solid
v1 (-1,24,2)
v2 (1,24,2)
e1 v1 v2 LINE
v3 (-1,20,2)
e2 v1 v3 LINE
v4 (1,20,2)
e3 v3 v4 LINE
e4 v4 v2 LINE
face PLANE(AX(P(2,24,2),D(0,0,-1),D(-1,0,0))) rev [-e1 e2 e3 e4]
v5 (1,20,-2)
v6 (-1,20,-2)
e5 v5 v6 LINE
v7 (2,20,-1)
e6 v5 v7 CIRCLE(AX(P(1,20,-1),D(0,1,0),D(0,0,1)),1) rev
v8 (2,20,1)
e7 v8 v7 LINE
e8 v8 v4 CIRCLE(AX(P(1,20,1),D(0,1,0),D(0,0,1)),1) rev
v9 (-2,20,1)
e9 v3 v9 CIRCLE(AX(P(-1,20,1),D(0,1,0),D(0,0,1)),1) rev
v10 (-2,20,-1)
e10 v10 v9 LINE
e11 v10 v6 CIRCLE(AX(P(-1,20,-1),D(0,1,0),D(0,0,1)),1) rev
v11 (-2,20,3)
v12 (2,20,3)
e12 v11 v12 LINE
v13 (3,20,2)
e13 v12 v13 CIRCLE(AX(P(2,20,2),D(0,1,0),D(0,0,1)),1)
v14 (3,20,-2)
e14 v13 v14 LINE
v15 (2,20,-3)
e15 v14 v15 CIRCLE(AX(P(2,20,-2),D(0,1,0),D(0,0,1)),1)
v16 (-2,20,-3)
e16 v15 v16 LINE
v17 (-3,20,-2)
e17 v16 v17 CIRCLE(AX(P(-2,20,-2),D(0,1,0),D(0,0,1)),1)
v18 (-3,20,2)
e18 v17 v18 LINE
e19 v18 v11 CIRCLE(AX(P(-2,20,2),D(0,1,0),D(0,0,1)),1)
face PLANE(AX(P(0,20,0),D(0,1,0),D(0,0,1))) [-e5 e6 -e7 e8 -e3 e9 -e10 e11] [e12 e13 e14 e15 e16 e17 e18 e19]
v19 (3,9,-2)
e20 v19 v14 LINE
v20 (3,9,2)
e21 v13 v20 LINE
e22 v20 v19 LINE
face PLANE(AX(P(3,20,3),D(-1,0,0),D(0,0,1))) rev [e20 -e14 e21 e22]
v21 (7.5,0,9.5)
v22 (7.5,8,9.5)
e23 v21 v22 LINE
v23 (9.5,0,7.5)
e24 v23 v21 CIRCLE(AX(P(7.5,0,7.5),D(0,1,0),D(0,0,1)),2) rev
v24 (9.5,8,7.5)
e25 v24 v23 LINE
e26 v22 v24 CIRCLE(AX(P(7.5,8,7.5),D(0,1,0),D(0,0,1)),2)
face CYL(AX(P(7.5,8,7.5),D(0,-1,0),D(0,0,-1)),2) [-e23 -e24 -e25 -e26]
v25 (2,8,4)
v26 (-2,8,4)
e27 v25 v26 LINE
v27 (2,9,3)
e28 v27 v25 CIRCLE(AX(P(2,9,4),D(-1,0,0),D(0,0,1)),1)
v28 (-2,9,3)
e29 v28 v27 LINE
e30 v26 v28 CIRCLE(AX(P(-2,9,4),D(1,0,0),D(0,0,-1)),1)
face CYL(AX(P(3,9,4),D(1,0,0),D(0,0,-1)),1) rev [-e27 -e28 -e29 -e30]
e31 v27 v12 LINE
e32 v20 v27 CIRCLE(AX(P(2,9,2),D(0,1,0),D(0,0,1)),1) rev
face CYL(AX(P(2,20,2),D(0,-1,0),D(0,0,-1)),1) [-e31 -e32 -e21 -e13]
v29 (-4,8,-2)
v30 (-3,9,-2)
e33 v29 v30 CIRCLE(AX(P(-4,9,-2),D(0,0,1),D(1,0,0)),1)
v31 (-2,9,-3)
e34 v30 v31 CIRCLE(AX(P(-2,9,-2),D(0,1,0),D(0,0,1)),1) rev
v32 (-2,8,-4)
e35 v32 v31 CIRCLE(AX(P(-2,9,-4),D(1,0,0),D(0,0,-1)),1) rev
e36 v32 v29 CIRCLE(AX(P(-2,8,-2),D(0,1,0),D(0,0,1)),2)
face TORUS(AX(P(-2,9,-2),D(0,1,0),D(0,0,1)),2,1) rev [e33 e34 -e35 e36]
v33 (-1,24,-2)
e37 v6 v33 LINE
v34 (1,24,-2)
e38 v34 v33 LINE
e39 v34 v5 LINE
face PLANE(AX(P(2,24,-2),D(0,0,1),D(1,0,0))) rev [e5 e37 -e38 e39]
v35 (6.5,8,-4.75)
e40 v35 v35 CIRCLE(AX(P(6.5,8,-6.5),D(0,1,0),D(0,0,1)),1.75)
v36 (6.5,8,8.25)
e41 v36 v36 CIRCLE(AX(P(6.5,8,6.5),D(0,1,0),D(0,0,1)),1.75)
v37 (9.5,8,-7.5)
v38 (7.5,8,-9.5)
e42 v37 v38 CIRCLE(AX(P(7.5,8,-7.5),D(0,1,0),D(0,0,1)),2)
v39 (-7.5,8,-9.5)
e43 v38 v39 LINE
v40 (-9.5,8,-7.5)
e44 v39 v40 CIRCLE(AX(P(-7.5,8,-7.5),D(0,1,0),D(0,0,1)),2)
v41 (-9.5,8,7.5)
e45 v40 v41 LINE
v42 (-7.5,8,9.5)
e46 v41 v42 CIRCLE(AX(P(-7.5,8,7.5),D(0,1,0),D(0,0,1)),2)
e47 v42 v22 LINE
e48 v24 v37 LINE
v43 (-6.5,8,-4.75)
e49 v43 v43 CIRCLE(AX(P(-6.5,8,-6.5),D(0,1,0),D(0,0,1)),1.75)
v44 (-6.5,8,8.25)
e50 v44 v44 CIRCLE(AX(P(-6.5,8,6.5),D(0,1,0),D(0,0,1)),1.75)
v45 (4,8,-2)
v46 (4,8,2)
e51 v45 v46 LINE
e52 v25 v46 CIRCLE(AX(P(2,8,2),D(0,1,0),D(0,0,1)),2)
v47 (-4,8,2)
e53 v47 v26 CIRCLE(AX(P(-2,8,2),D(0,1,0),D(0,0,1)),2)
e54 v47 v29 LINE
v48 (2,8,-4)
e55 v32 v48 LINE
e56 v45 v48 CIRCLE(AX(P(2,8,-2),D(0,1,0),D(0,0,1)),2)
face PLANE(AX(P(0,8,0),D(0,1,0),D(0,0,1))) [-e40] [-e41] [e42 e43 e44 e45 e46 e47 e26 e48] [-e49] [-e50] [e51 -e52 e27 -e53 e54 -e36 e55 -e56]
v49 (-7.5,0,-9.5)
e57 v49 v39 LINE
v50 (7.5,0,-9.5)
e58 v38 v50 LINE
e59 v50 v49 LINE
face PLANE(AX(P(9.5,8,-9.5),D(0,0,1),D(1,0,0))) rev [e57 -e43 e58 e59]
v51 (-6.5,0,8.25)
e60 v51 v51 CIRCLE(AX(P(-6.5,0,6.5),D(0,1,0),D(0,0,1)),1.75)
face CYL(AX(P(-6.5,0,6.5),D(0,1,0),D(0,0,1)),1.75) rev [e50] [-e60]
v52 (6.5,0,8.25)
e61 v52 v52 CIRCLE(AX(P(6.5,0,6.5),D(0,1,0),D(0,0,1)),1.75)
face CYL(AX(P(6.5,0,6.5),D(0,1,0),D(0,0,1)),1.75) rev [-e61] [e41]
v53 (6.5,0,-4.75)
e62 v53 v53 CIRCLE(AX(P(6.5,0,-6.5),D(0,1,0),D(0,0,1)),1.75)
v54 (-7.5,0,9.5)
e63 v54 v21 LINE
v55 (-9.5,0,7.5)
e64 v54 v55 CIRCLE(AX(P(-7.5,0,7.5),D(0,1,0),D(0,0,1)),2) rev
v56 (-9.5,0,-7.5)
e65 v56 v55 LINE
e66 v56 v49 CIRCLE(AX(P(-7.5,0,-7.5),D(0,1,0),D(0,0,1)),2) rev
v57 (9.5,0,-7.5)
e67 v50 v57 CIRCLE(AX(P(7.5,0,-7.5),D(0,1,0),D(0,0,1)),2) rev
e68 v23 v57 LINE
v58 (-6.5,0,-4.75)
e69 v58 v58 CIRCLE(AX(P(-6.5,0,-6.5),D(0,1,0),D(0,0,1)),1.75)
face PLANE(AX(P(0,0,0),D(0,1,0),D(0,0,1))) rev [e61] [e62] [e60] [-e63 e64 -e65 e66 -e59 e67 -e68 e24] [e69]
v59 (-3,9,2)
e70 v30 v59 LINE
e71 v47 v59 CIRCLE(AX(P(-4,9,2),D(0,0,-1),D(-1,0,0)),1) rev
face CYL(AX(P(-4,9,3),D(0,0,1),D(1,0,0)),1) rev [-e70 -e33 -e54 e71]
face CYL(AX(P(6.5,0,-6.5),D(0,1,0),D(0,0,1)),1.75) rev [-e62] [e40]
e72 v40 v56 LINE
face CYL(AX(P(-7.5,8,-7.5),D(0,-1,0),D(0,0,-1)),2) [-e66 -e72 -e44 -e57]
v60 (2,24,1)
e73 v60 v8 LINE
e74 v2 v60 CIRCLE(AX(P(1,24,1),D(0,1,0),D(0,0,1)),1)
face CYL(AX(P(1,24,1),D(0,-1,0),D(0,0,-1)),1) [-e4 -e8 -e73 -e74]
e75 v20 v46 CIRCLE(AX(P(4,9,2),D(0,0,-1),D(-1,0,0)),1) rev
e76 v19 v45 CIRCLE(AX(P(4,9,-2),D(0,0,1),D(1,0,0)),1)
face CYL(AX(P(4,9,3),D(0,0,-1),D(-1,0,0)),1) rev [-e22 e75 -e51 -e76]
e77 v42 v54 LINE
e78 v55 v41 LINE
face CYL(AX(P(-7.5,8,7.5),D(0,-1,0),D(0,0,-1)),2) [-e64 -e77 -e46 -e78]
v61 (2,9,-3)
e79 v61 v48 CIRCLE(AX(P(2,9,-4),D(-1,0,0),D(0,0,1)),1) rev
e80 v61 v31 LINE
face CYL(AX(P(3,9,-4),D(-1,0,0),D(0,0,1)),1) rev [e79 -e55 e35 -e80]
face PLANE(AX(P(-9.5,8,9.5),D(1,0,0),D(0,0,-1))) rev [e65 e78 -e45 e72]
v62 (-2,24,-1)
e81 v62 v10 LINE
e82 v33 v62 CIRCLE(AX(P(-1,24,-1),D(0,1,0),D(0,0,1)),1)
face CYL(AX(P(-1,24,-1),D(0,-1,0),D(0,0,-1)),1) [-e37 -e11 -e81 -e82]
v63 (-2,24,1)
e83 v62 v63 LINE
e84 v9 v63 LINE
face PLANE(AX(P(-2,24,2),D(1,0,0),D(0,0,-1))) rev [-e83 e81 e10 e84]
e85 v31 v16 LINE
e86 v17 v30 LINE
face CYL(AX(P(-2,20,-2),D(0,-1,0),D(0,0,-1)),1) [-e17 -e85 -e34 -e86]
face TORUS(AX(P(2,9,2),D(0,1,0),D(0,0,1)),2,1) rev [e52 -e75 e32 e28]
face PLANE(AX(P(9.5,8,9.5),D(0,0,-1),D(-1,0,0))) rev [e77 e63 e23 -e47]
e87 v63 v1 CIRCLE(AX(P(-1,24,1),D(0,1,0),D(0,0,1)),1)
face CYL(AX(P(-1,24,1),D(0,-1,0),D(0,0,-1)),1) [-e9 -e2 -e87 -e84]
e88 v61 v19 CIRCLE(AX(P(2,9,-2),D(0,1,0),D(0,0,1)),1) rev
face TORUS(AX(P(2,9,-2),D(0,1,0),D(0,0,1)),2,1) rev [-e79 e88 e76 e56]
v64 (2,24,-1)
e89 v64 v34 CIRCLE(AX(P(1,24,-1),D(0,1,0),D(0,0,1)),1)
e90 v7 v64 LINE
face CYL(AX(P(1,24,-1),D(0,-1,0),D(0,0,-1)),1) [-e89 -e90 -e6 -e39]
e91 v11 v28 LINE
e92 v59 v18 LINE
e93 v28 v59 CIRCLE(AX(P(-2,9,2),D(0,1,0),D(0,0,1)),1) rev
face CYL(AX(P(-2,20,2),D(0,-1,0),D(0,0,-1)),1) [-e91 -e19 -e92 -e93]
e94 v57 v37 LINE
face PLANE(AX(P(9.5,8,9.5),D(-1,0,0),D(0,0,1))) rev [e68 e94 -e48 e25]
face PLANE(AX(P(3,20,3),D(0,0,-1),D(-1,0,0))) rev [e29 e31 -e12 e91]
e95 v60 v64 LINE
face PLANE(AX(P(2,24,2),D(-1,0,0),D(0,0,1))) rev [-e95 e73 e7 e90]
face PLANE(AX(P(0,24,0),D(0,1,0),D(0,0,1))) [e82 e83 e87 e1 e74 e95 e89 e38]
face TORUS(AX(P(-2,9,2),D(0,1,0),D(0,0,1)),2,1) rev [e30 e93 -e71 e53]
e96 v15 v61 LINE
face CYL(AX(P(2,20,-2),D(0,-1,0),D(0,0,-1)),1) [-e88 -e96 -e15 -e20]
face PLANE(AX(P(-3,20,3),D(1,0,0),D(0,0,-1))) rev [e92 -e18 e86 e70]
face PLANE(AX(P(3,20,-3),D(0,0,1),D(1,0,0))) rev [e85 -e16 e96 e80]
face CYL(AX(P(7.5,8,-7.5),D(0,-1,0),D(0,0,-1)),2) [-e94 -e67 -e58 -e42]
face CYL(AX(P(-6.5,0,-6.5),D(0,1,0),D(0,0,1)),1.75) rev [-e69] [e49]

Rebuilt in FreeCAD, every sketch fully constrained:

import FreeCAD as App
import Part
import Sketcher


def edges_at(feature, points):
    """Names of the edges that pass closest to the given points."""
    edges = feature.Shape.Edges
    near = lambda p: min(range(len(edges)), key=lambda i: edges[i].distToShape(Part.Vertex(*p))[0])
    return sorted({f"Edge{near(p) + 1}" for p in points})

doc = App.newDocument("Part")
body = doc.addObject("PartDesign::Body", "Body")

sketch1 = body.newObject("Sketcher::SketchObject", "Sketch")
sketch1.AttachmentSupport = (doc.getObject("XZ_Plane"), [""])
sketch1.MapMode = "FlatFace"
sketch1.addGeometry(Part.LineSegment(App.Vector(-10, -10, 0), App.Vector(-10, 10, 0)), False)
sketch1.addGeometry(Part.LineSegment(App.Vector(-10, 10, 0), App.Vector(10, 10, 0)), False)
sketch1.addGeometry(Part.LineSegment(App.Vector(10, 10, 0), App.Vector(10, -10, 0)), False)
sketch1.addGeometry(Part.LineSegment(App.Vector(10, -10, 0), App.Vector(-10, -10, 0)), False)
sketch1.addConstraint(Sketcher.Constraint("Coincident", 0, 2, 1, 1))
sketch1.addConstraint(Sketcher.Constraint("Coincident", 1, 2, 2, 1))
sketch1.addConstraint(Sketcher.Constraint("Coincident", 2, 2, 3, 1))
sketch1.addConstraint(Sketcher.Constraint("Coincident", 3, 2, 0, 1))
sketch1.addConstraint(Sketcher.Constraint("Vertical", 0))
sketch1.addConstraint(Sketcher.Constraint("Horizontal", 1))
sketch1.addConstraint(Sketcher.Constraint("Vertical", 2))
sketch1.addConstraint(Sketcher.Constraint("Horizontal", 3))
sketch1.addConstraint(Sketcher.Constraint("Symmetric", 0, 2, 2, 2, -1, 1))
sketch1.addConstraint(Sketcher.Constraint("Equal", 3, 0))
sketch1.addConstraint(Sketcher.Constraint("DistanceX", 1, 1, 1, 2, 19.0))
pad1 = body.newObject("PartDesign::Pad", "Pad")
pad1.Profile = sketch1
pad1.Length = 8
pad1.Reversed = True

sketch2 = body.newObject("Sketcher::SketchObject", "Sketch001")
sketch2.AttachmentSupport = (doc.getObject("XZ_Plane"), [""])
sketch2.MapMode = "FlatFace"
sketch2.AttachmentOffset = App.Placement(App.Vector(0, 0, -8), App.Rotation())
sketch2.addGeometry(Part.Circle(App.Vector(-6.5, -6.5, 0), App.Vector(0, 0, 1), 1.8), False)
sketch2.addGeometry(Part.Circle(App.Vector(6.5, -6.5, 0), App.Vector(0, 0, 1), 1.8), False)
sketch2.addGeometry(Part.Circle(App.Vector(-6.5, 6.5, 0), App.Vector(0, 0, 1), 1.8), False)
sketch2.addGeometry(Part.Circle(App.Vector(6.5, 6.5, 0), App.Vector(0, 0, 1), 1.8), False)
sketch2.addConstraint(Sketcher.Constraint("Equal", 0, 1))
sketch2.addConstraint(Sketcher.Constraint("Equal", 1, 2))
sketch2.addConstraint(Sketcher.Constraint("Equal", 2, 3))
sketch2.addConstraint(Sketcher.Constraint("Symmetric", 1, 3, 2, 3, -1, 1))
sketch2.addConstraint(Sketcher.Constraint("Symmetric", 0, 3, 3, 3, -1, 1))
sketch2.addConstraint(Sketcher.Constraint("Symmetric", 0, 3, 1, 3, -2))
sketch2.addConstraint(Sketcher.Constraint("Diameter", 0, 3.5))
sketch2.addConstraint(Sketcher.Constraint("DistanceX", 0, 3, 1, 3, 13.0))
sketch2.addConstraint(Sketcher.Constraint("DistanceY", 0, 3, 2, 3, 13.0))
pocket1 = body.newObject("PartDesign::Pocket", "Pocket")
pocket1.Profile = sketch2
pocket1.Type = "ThroughAll"
pocket1.Reversed = True

sketch3 = body.newObject("Sketcher::SketchObject", "Sketch002")
sketch3.AttachmentSupport = (doc.getObject("XZ_Plane"), [""])
sketch3.MapMode = "FlatFace"
sketch3.AttachmentOffset = App.Placement(App.Vector(0, 0, -8), App.Rotation())
sketch3.addGeometry(Part.LineSegment(App.Vector(-3, -3, 0), App.Vector(-3, 3, 0)), False)
sketch3.addGeometry(Part.LineSegment(App.Vector(-3, 3, 0), App.Vector(3, 3, 0)), False)
sketch3.addGeometry(Part.LineSegment(App.Vector(3, 3, 0), App.Vector(3, -3, 0)), False)
sketch3.addGeometry(Part.LineSegment(App.Vector(3, -3, 0), App.Vector(-3, -3, 0)), False)
sketch3.addConstraint(Sketcher.Constraint("Coincident", 0, 2, 1, 1))
sketch3.addConstraint(Sketcher.Constraint("Coincident", 1, 2, 2, 1))
sketch3.addConstraint(Sketcher.Constraint("Coincident", 2, 2, 3, 1))
sketch3.addConstraint(Sketcher.Constraint("Coincident", 3, 2, 0, 1))
sketch3.addConstraint(Sketcher.Constraint("Vertical", 0))
sketch3.addConstraint(Sketcher.Constraint("Horizontal", 1))
sketch3.addConstraint(Sketcher.Constraint("Vertical", 2))
sketch3.addConstraint(Sketcher.Constraint("Horizontal", 3))
sketch3.addConstraint(Sketcher.Constraint("Symmetric", 0, 2, 2, 2, -1, 1))
sketch3.addConstraint(Sketcher.Constraint("Equal", 3, 0))
sketch3.addConstraint(Sketcher.Constraint("DistanceX", 1, 1, 1, 2, 6.0))
pad2 = body.newObject("PartDesign::Pad", "Pad001")
pad2.Profile = sketch3
pad2.Length = 12
pad2.Reversed = True
doc.recompute()

fillet = body.newObject("PartDesign::Fillet", "Fillet")
fillet.Base = (pad2, edges_at(pad2, [
    (-9.5, 4, -9.5),
    (9.5, 4, -9.5),
    (9.5, 4, 9.5),
    (-9.5, 4, 9.5),
]))
fillet.Radius = 2

sketch4 = body.newObject("Sketcher::SketchObject", "Sketch003")
sketch4.AttachmentSupport = (doc.getObject("XZ_Plane"), [""])
sketch4.MapMode = "FlatFace"
sketch4.AttachmentOffset = App.Placement(App.Vector(0, 0, -20), App.Rotation())
sketch4.addGeometry(Part.LineSegment(App.Vector(-2, -2, 0), App.Vector(-2, 2, 0)), False)
sketch4.addGeometry(Part.LineSegment(App.Vector(-2, 2, 0), App.Vector(2, 2, 0)), False)
sketch4.addGeometry(Part.LineSegment(App.Vector(2, 2, 0), App.Vector(2, -2, 0)), False)
sketch4.addGeometry(Part.LineSegment(App.Vector(2, -2, 0), App.Vector(-2, -2, 0)), False)
sketch4.addConstraint(Sketcher.Constraint("Coincident", 0, 2, 1, 1))
sketch4.addConstraint(Sketcher.Constraint("Coincident", 1, 2, 2, 1))
sketch4.addConstraint(Sketcher.Constraint("Coincident", 2, 2, 3, 1))
sketch4.addConstraint(Sketcher.Constraint("Coincident", 3, 2, 0, 1))
sketch4.addConstraint(Sketcher.Constraint("Vertical", 0))
sketch4.addConstraint(Sketcher.Constraint("Horizontal", 1))
sketch4.addConstraint(Sketcher.Constraint("Vertical", 2))
sketch4.addConstraint(Sketcher.Constraint("Horizontal", 3))
sketch4.addConstraint(Sketcher.Constraint("Symmetric", 0, 2, 2, 2, -1, 1))
sketch4.addConstraint(Sketcher.Constraint("Equal", 3, 0))
sketch4.addConstraint(Sketcher.Constraint("DistanceX", 1, 1, 1, 2, 4.0))
pad3 = body.newObject("PartDesign::Pad", "Pad002")
pad3.Profile = sketch4
pad3.Length = 4
pad3.Reversed = True
doc.recompute()

fillet2 = body.newObject("PartDesign::Fillet", "Fillet001")
fillet2.Base = (pad3, edges_at(pad3, [
    (-3, 8, 0),
    (-3, 14, -3),
    (0, 8, 3),
    (-3, 14, 3),
    (3, 8, 0),
    (3, 14, 3),
    (0, 8, -3),
    (3, 14, -3),
    (-2, 22, -2),
    (-2, 22, 2),
    (2, 22, 2),
    (2, 22, -2),
]))
fillet2.Radius = 1

doc.recompute()
